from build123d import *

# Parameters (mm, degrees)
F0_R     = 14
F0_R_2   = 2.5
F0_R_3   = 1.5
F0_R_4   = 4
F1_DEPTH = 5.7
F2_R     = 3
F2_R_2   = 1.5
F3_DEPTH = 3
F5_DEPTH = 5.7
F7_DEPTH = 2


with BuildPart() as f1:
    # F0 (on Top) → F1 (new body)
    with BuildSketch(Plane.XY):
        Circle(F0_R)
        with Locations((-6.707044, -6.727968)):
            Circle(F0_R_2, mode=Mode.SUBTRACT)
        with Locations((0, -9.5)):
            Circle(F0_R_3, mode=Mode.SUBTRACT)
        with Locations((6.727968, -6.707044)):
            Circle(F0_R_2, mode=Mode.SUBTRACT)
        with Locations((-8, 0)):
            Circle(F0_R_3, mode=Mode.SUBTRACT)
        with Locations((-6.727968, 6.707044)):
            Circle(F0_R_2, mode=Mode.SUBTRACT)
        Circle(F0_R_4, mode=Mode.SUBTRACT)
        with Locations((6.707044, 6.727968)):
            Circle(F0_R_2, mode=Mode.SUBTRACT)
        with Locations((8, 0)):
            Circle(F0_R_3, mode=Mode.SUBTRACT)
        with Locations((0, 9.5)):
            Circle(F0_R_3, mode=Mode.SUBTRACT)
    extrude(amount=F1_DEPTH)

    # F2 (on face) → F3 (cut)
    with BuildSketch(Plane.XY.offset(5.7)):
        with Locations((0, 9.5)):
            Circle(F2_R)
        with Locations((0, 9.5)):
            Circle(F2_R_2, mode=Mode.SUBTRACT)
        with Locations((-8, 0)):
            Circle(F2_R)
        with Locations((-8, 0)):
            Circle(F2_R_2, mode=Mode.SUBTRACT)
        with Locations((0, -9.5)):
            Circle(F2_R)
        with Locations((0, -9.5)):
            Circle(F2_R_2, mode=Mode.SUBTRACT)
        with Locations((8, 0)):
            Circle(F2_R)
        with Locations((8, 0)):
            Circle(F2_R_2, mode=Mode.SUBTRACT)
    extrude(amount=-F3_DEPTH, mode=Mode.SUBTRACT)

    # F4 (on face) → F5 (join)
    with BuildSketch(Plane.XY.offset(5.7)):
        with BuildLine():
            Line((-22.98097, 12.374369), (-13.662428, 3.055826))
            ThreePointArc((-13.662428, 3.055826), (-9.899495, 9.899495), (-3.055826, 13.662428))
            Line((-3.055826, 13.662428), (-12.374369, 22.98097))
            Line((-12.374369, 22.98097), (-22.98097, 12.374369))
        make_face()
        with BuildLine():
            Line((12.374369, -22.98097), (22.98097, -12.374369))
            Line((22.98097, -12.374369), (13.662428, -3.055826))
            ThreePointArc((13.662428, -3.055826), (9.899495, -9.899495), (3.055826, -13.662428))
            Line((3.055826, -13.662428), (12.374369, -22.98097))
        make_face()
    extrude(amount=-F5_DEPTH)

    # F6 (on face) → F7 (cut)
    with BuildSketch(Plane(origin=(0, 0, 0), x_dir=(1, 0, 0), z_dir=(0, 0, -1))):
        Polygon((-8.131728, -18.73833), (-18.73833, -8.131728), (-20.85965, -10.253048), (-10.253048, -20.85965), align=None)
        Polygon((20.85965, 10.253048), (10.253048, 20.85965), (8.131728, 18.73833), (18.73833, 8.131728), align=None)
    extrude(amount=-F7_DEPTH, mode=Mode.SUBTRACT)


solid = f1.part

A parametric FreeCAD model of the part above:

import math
import FreeCAD as App
import Part
import Sketcher
from FreeCAD import Vector
Q = App.Units.Quantity

doc = App.newDocument("Part")
body = doc.addObject("PartDesign::Body", "Body")

sketch1 = body.newObject("Sketcher::SketchObject", "Sketch")
sketch1.AttachmentSupport = (doc.getObject("XY_Plane"), [""])
sketch1.MapMode = "FlatFace"
sketch1.addGeometry([
    Part.Circle(Vector(0, 0, 0), Vector(0, 0, 1), 14),
    Part.Circle(Vector(-6.7, -6.7, 0), Vector(0, 0, 1), 2.5),
    Part.Circle(Vector(0, -9.5, 0), Vector(0, 0, 1), 1.5),
    Part.Circle(Vector(6.7, -6.7, 0), Vector(0, 0, 1), 2.5),
    Part.Circle(Vector(-8, 0, 0), Vector(0, 0, 1), 1.5),
    Part.Circle(Vector(-6.7, 6.7, 0), Vector(0, 0, 1), 2.5),
    Part.Circle(Vector(0, 0, 0), Vector(0, 0, 1), 4),
    Part.Circle(Vector(8, 0, 0), Vector(0, 0, 1), 1.5),
    Part.Circle(Vector(0, 9.5, 0), Vector(0, 0, 1), 1.5),
    Part.Circle(Vector(6.7, 6.7, 0), Vector(0, 0, 1), 2.5),
], False)
sketch1.addConstraint([
    Sketcher.Constraint("Coincident", 0, 3, -1, 1),
    Sketcher.Constraint("Coincident", 6, 3, -1, 1),
    Sketcher.Constraint("Equal", 1, 3),
    Sketcher.Constraint("Equal", 2, 4),
    Sketcher.Constraint("Equal", 3, 5),
    Sketcher.Constraint("Equal", 4, 7),
    Sketcher.Constraint("Equal", 7, 8),
    Sketcher.Constraint("Equal", 5, 9),
    Sketcher.Constraint("Symmetric", 3, 3, 5, 3, -1, 1),
    Sketcher.Constraint("Symmetric", 4, 3, 7, 3, -1, 1),
    Sketcher.Constraint("Symmetric", 2, 3, 8, 3, -1, 1),
    Sketcher.Constraint("Symmetric", 1, 3, 9, 3, -1, 1),
    Sketcher.Constraint("PointOnObject", 2, 3, -2),
    Sketcher.Constraint("PointOnObject", 4, 3, -1),
    Sketcher.Constraint("Diameter", 0, 28.0),
    Sketcher.Constraint("Diameter", 1, 5.0),
    Sketcher.Constraint("Diameter", 2, 3.0),
    Sketcher.Constraint("Diameter", 6, 8.0),
    Sketcher.Constraint("DistanceX", 4, 3, -1, 1, 8.0),
    Sketcher.Constraint("DistanceY", 2, 3, -1, 1, 9.5),
    Sketcher.Constraint("DistanceX", 4, 3, 3, 3, 14.727968),
    Sketcher.Constraint("DistanceX", 1, 3, -1, 1, 6.707044),
    Sketcher.Constraint("DistanceY", 1, 3, -1, 1, 6.727968),
    Sketcher.Constraint("DistanceY", 3, 3, -1, 1, 6.707044),
])
pad1 = body.newObject("PartDesign::Pad", "Pad")
pad1.Profile = sketch1
pad1.Length = 5.7

sketch2 = body.newObject("Sketcher::SketchObject", "Sketch001")
sketch2.AttachmentSupport = (doc.getObject("XY_Plane"), [""])
sketch2.MapMode = "FlatFace"
sketch2.AttachmentOffset = App.Placement(Vector(0, 0, 5.7), App.Rotation())
sketch2.addGeometry([
    Part.Circle(Vector(0, 9.5, 0), Vector(0, 0, 1), 3),
    Part.Circle(Vector(0, 9.5, 0), Vector(0, 0, 1), 1.5),
    Part.Circle(Vector(-8, 0, 0), Vector(0, 0, 1), 3),
    Part.Circle(Vector(-8, 0, 0), Vector(0, 0, 1), 1.5),
    Part.Circle(Vector(0, -9.5, 0), Vector(0, 0, 1), 3),
    Part.Circle(Vector(0, -9.5, 0), Vector(0, 0, 1), 1.5),
    Part.Circle(Vector(8, 0, 0), Vector(0, 0, 1), 3),
    Part.Circle(Vector(8, 0, 0), Vector(0, 0, 1), 1.5),
], False)
sketch2.addConstraint([
    Sketcher.Constraint("Coincident", 1, 3, 0, 3),
    Sketcher.Constraint("Coincident", 3, 3, 2, 3),
    Sketcher.Constraint("Coincident", 5, 3, 4, 3),
    Sketcher.Constraint("Coincident", 7, 3, 6, 3),
    Sketcher.Constraint("Equal", 0, 2),
    Sketcher.Constraint("Equal", 1, 3),
    Sketcher.Constraint("Equal", 2, 4),
    Sketcher.Constraint("Equal", 3, 5),
    Sketcher.Constraint("Equal", 4, 6),
    Sketcher.Constraint("Equal", 5, 7),
    Sketcher.Constraint("Symmetric", 0, 3, 4, 3, -1, 1),
    Sketcher.Constraint("Symmetric", 2, 3, 6, 3, -1, 1),
    Sketcher.Constraint("PointOnObject", 0, 3, -2),
    Sketcher.Constraint("PointOnObject", 2, 3, -1),
    Sketcher.Constraint("Diameter", 0, 6.0),
    Sketcher.Constraint("Diameter", 1, 3.0),
    Sketcher.Constraint("DistanceX", 2, 3, -1, 1, 8.0),
    Sketcher.Constraint("DistanceY", 4, 3, 0, 3, 19.0),
])
pocket1 = body.newObject("PartDesign::Pocket", "Pocket")
pocket1.Profile = sketch2
pocket1.Length = 3

sketch3 = body.newObject("Sketcher::SketchObject", "Sketch002")
sketch3.AttachmentSupport = (doc.getObject("XY_Plane"), [""])
sketch3.MapMode = "FlatFace"
sketch3.AttachmentOffset = App.Placement(Vector(0, 0, 5.7), App.Rotation())
sketch3.addGeometry([
    Part.LineSegment(Vector(-23, 12, 0), Vector(-14, 3, 0)),
    Part.ArcOfCircle(Part.Circle(Vector(0, 0, 0), Vector(0, 0, 1), 14), math.radians(103), math.radians(167)),
    Part.LineSegment(Vector(-3, 14, 0), Vector(-12, 23, 0)),
    Part.LineSegment(Vector(-12, 23, 0), Vector(-23, 12, 0)),
    Part.LineSegment(Vector(12, -23, 0), Vector(23, -12, 0)),
    Part.LineSegment(Vector(23, -12, 0), Vector(14, -3, 0)),
    Part.ArcOfCircle(Part.Circle(Vector(0, 0, 0), Vector(0, 0, 1), 14), math.radians(-77), math.radians(-13)),
    Part.LineSegment(Vector(3, -14, 0), Vector(12, -23, 0)),
], False)
sketch3.addConstraint([
    Sketcher.Constraint("Coincident", 0, 2, 1, 2),
    Sketcher.Constraint("Coincident", 1, 1, 2, 1),
    Sketcher.Constraint("Coincident", 2, 2, 3, 1),
    Sketcher.Constraint("Coincident", 3, 2, 0, 1),
    Sketcher.Constraint("Coincident", 4, 2, 5, 1),
    Sketcher.Constraint("Coincident", 5, 2, 6, 2),
    Sketcher.Constraint("Coincident", 6, 1, 7, 1),
    Sketcher.Constraint("Coincident", 7, 2, 4, 1),
    Sketcher.Constraint("Coincident", 1, 3, -1, 1),
    Sketcher.Constraint("Coincident", 6, 3, -1, 1),
    Sketcher.Constraint("Equal", 1, 6),
    Sketcher.Constraint("Symmetric", 3, 2, 4, 2, -1, 1),
    Sketcher.Constraint("Symmetric", 2, 2, 7, 2, -1, 1),
    Sketcher.Constraint("Parallel", 0, 2),
    Sketcher.Constraint("Perpendicular", 2, 3),
    Sketcher.Constraint("Perpendicular", 4, 5),
    Sketcher.Constraint("Parallel", 5, 7),
    Sketcher.Constraint("Equal", 0, 2),
    Sketcher.Constraint("Angle", 0, Q("-45.000003 deg")),
    Sketcher.Constraint("Distance", 3, 14.999999),
    Sketcher.Constraint("Radius", 1, 14.000002),
    Sketcher.Constraint("Distance", 0, 13.178409),
])
pad2 = body.newObject("PartDesign::Pad", "Pad001")
pad2.Profile = sketch3
pad2.Length = 5.7
pad2.Reversed = True

sketch4 = body.newObject("Sketcher::SketchObject", "Sketch003")
sketch4.AttachmentSupport = (doc.getObject("XY_Plane"), [""])
sketch4.MapMode = "FlatFace"
sketch4.addGeometry([
    Part.LineSegment(Vector(-8.1, 18.7, 0), Vector(-18.7, 8.1, 0)),
    Part.LineSegment(Vector(-18.7, 8.1, 0), Vector(-20.9, 10.3, 0)),
    Part.LineSegment(Vector(-20.9, 10.3, 0), Vector(-10.3, 20.9, 0)),
    Part.LineSegment(Vector(-10.3, 20.9, 0), Vector(-8.1, 18.7, 0)),
    Part.LineSegment(Vector(20.9, -10.3, 0), Vector(10.3, -20.9, 0)),
    Part.LineSegment(Vector(10.3, -20.9, 0), Vector(8.1, -18.7, 0)),
    Part.LineSegment(Vector(8.1, -18.7, 0), Vector(18.7, -8.1, 0)),
    Part.LineSegment(Vector(18.7, -8.1, 0), Vector(20.9, -10.3, 0)),
], False)
sketch4.addConstraint([
    Sketcher.Constraint("Coincident", 0, 2, 1, 1),
    Sketcher.Constraint("Coincident", 1, 2, 2, 1),
    Sketcher.Constraint("Coincident", 2, 2, 3, 1),
    Sketcher.Constraint("Coincident", 3, 2, 0, 1),
    Sketcher.Constraint("Coincident", 4, 2, 5, 1),
    Sketcher.Constraint("Coincident", 5, 2, 6, 1),
    Sketcher.Constraint("Coincident", 6, 2, 7, 1),
    Sketcher.Constraint("Coincident", 7, 2, 4, 1),
    Sketcher.Constraint("Symmetric", 2, 2, 4, 2, -1, 1),
    Sketcher.Constraint("Symmetric", 3, 2, 5, 2, -1, 1),
    Sketcher.Constraint("Symmetric", 0, 2, 6, 2, -1, 1),
    Sketcher.Constraint("Symmetric", 1, 2, 7, 2, -1, 1),
    Sketcher.Constraint("Perpendicular", 0, 1),
    Sketcher.Constraint("Perpendicular", 1, 2),
    Sketcher.Constraint("Perpendicular", 2, 3),
    Sketcher.Constraint("Angle", 0, Q("-135 deg")),
    Sketcher.Constraint("Distance", 0, 15.0),
    Sketcher.Constraint("Distance", 1, 3.0),
    Sketcher.Constraint("DistanceY", 4, 2, 2, 2, 41.7193),
    Sketcher.Constraint("DistanceX", 0, 2, -1, 1, 18.73833),
])
pocket2 = body.newObject("PartDesign::Pocket", "Pocket001")
pocket2.Profile = sketch4
pocket2.Length = 2
pocket2.Reversed = True

doc.recompute()
